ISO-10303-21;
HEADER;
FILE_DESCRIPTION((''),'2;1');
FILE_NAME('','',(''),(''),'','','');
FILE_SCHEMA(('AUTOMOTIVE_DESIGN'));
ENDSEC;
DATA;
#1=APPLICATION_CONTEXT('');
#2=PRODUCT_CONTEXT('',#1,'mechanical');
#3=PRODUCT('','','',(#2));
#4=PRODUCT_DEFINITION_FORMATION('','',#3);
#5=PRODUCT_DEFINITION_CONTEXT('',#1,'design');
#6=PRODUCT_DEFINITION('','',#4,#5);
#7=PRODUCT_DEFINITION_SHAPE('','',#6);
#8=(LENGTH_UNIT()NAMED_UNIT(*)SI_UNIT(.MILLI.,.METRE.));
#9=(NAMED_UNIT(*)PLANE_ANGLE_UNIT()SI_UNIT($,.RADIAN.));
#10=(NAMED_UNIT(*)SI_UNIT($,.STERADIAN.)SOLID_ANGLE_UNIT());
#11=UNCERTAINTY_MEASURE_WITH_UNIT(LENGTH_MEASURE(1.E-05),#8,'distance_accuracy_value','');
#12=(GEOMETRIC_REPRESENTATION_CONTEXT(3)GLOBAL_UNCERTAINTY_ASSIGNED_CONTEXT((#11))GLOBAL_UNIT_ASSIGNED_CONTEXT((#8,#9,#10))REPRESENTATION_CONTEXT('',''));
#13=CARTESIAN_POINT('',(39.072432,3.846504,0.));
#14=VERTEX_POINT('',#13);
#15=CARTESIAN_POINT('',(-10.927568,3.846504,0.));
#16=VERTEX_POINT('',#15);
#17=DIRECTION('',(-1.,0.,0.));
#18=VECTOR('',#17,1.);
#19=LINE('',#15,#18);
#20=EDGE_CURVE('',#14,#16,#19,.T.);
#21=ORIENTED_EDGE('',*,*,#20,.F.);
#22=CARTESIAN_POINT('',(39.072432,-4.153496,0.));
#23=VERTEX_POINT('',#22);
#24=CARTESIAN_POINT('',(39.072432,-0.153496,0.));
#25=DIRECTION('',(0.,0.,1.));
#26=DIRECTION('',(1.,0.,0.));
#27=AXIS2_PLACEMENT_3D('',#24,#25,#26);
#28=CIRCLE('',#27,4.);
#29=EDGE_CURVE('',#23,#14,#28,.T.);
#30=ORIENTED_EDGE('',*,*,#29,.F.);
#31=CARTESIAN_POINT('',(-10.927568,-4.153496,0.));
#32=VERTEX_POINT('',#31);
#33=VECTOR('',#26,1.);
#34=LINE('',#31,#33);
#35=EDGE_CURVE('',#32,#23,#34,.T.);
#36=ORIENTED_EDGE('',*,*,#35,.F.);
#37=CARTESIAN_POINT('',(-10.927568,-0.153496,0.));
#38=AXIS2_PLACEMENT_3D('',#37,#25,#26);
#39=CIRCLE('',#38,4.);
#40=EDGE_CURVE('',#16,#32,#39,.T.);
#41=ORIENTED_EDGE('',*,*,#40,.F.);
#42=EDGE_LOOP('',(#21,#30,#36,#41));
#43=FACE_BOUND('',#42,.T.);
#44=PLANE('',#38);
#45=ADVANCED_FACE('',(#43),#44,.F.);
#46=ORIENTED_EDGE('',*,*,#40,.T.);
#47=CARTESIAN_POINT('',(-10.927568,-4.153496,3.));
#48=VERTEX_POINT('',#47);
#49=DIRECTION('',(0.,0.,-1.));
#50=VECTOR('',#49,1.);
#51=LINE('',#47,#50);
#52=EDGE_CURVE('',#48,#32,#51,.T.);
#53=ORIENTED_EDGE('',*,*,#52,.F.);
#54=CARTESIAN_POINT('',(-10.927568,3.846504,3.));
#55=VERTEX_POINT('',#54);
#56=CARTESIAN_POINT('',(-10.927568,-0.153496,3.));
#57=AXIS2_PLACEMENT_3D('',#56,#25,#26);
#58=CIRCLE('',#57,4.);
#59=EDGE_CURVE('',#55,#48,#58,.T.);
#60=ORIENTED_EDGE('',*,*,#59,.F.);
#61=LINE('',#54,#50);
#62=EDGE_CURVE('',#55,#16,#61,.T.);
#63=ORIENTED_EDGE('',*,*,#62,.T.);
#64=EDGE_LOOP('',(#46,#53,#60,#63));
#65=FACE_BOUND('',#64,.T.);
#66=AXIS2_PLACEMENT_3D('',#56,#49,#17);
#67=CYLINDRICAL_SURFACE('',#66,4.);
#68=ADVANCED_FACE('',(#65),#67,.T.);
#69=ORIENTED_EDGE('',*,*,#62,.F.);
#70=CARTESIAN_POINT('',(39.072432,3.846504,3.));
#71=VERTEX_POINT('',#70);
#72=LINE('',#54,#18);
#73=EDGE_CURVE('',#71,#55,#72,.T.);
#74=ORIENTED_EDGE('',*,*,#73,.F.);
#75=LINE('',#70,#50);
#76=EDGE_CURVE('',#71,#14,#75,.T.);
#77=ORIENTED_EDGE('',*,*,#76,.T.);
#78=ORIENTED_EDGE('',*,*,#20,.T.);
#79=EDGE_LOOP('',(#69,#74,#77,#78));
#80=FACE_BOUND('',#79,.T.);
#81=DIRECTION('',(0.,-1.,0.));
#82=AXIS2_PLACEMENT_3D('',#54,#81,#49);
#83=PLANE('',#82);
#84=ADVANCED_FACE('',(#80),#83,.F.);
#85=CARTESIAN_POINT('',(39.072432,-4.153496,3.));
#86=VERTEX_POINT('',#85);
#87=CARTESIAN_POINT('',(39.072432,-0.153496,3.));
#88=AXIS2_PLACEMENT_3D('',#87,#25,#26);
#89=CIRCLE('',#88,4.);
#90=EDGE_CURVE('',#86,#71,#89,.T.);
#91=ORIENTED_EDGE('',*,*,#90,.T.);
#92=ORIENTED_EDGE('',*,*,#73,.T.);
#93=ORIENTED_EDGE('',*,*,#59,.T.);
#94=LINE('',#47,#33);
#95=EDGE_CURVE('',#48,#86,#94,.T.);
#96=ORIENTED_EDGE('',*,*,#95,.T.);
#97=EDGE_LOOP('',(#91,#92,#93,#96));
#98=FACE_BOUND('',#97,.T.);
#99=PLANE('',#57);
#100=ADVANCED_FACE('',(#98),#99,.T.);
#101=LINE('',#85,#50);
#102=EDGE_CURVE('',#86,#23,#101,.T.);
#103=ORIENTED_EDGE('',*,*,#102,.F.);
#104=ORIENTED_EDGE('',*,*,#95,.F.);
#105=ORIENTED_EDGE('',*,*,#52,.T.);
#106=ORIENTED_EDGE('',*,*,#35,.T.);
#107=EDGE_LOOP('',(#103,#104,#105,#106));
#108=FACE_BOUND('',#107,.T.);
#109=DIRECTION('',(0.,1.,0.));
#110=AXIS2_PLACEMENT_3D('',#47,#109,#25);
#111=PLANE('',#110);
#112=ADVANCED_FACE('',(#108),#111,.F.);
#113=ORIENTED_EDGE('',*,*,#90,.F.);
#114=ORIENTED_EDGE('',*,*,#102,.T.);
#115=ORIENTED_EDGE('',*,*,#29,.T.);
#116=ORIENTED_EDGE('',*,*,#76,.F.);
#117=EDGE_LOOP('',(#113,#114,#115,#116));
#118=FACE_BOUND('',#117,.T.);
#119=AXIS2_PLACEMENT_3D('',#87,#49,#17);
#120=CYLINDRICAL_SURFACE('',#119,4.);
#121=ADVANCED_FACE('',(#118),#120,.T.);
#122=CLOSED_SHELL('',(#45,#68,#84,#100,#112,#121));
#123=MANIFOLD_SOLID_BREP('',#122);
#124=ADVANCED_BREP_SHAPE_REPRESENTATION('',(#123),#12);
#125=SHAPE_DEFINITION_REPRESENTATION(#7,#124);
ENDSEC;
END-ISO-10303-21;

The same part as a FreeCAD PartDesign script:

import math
import FreeCAD as App
import Part
import Sketcher
from FreeCAD import Vector
Q = App.Units.Quantity

doc = App.newDocument("Part")
body = doc.addObject("PartDesign::Body", "Body")

sketch1 = body.newObject("Sketcher::SketchObject", "Sketch")
sketch1.AttachmentSupport = (doc.getObject("XY_Plane"), [""])
sketch1.MapMode = "FlatFace"
sketch1.addGeometry(Part.LineSegment(Vector(39.1, 3.8, 0), Vector(-10.9, 3.8, 0)), False)
sketch1.addGeometry(Part.ArcOfCircle(Part.Circle(Vector(-10.9, -0.2, 0), Vector(0, 0, 1), 4), math.radians(90), math.radians(270)), False)
sketch1.addGeometry(Part.LineSegment(Vector(-10.9, -4.2, 0), Vector(39.1, -4.2, 0)), False)
sketch1.addGeometry(Part.ArcOfCircle(Part.Circle(Vector(39.1, -0.2, 0), Vector(0, 0, 1), 4), math.radians(-90), math.radians(90)), False)
sketch1.addConstraint(Sketcher.Constraint("Tangent", 0, 2, 1, 1))
sketch1.addConstraint(Sketcher.Constraint("Tangent", 1, 2, 2, 1))
sketch1.addConstraint(Sketcher.Constraint("Tangent", 2, 2, 3, 1))
sketch1.addConstraint(Sketcher.Constraint("Tangent", 3, 2, 0, 1))
sketch1.addConstraint(Sketcher.Constraint("Horizontal", 0))
sketch1.addConstraint(Sketcher.Constraint("Horizontal", 2))
sketch1.addConstraint(Sketcher.Constraint("Radius", 1, Q("4 mm")))
sketch1.addConstraint(Sketcher.Constraint("DistanceX", 0, 2, 0, 1, Q("50 mm")))
sketch1.addConstraint(Sketcher.Constraint("DistanceX", 1, 3, -1, 1, Q("10.927568 mm")))
sketch1.addConstraint(Sketcher.Constraint("DistanceY", 1, 3, -1, 1, Q("0.153496 mm")))
pad1 = body.newObject("PartDesign::Pad", "Pad")
pad1.Profile = sketch1
pad1.Length = 3

doc.recompute()
